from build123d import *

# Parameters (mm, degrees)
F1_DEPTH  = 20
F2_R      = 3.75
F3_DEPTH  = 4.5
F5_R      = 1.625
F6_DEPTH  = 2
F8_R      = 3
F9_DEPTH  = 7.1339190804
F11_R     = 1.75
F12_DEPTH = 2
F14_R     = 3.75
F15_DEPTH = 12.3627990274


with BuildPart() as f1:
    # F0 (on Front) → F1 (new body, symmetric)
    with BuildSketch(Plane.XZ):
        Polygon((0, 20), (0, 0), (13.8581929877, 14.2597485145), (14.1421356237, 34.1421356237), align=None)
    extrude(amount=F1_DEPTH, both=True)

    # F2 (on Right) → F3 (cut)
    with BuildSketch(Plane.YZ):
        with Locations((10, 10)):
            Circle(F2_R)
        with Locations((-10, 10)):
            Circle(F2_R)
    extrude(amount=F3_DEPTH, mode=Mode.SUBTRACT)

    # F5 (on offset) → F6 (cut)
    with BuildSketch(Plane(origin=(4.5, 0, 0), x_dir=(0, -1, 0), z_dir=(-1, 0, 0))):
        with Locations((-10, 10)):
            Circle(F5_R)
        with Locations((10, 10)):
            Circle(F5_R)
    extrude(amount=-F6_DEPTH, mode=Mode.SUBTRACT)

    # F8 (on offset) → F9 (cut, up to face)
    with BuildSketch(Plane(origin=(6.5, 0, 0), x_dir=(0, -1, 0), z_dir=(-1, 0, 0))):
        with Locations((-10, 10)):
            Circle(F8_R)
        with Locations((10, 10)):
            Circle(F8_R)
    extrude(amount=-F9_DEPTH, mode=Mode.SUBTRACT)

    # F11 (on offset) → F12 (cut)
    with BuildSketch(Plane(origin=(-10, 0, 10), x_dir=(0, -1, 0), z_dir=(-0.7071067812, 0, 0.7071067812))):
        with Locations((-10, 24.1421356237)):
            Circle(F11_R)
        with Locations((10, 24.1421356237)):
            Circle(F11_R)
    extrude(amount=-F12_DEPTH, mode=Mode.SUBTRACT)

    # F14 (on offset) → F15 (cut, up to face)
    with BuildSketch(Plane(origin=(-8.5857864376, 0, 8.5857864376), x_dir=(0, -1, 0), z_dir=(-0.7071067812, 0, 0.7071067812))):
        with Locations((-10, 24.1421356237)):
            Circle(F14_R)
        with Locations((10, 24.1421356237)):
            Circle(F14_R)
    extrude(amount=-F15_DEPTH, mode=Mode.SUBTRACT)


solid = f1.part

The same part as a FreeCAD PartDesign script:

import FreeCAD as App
import Part
import Sketcher
from FreeCAD import Vector
Q = App.Units.Quantity

doc = App.newDocument("Part")
body = doc.addObject("PartDesign::Body", "Body")

sketch1 = body.newObject("Sketcher::SketchObject", "Sketch")
sketch1.AttachmentSupport = (doc.getObject("XZ_Plane"), [""])
sketch1.MapMode = "FlatFace"
sketch1.addGeometry([
    Part.LineSegment(Vector(0, 20, 0), Vector(0, 0, 0)),
    Part.LineSegment(Vector(0, 0, 0), Vector(13.858193, 14.259749, 0)),
    Part.LineSegment(Vector(13.858193, 14.259749, 0), Vector(14.142136, 34.142136, 0)),
    Part.LineSegment(Vector(14.142136, 34.142136, 0), Vector(0, 20, 0)),
], False)
sketch1.addConstraint([
    Sketcher.Constraint("Coincident", 0, 2, 1, 1),
    Sketcher.Constraint("Coincident", 1, 2, 2, 1),
    Sketcher.Constraint("Coincident", 2, 2, 3, 1),
    Sketcher.Constraint("Coincident", 3, 2, 0, 1),
    Sketcher.Constraint("Vertical", 0),
    Sketcher.Constraint("Coincident", 0, 2, -1, 1),
    Sketcher.Constraint("Equal", 1, 2),
    Sketcher.Constraint("DistanceY", 0, 2, 0, 1, Q("20 mm")),
    Sketcher.Constraint("Angle", 3, Q("-135 deg")),
    Sketcher.Constraint("Distance", 3, Q("20 mm")),
    Sketcher.Constraint("DistanceY", -1, 1, 1, 2, Q("14.259749 mm")),
])
pad1 = body.newObject("PartDesign::Pad", "Pad")
pad1.Profile = sketch1
pad1.Length = 40
pad1.Midplane = True

sketch2 = body.newObject("Sketcher::SketchObject", "Sketch001")
sketch2.AttachmentSupport = (doc.getObject("YZ_Plane"), [""])
sketch2.MapMode = "FlatFace"
sketch2.addGeometry([
    Part.Circle(Vector(10, 10, 0), Vector(0, 0, 1), 3.75),
    Part.Circle(Vector(-10, 10, 0), Vector(0, 0, 1), 3.75),
], False)
sketch2.addConstraint([
    Sketcher.Constraint("Equal", 0, 1),
    Sketcher.Constraint("Symmetric", 0, 3, 1, 3, -2),
    Sketcher.Constraint("Diameter", 0, Q("7.5 mm")),
    Sketcher.Constraint("DistanceX", -1, 1, 0, 3, Q("10 mm")),
    Sketcher.Constraint("DistanceY", -1, 1, 0, 3, Q("10 mm")),
])
pocket1 = body.newObject("PartDesign::Pocket", "Pocket")
pocket1.Profile = sketch2
pocket1.Length = 4.5
pocket1.Reversed = True

sketch3 = body.newObject("Sketcher::SketchObject", "Sketch002")
sketch3.AttachmentSupport = (doc.getObject("YZ_Plane"), [""])
sketch3.MapMode = "FlatFace"
sketch3.AttachmentOffset = App.Placement(Vector(0, 0, 4.5), App.Rotation())
sketch3.addGeometry([
    Part.Circle(Vector(10, 10, 0), Vector(0, 0, 1), 1.625),
    Part.Circle(Vector(-10, 10, 0), Vector(0, 0, 1), 1.625),
], False)
sketch3.addConstraint([
    Sketcher.Constraint("Equal", 0, 1),
    Sketcher.Constraint("Symmetric", 0, 3, 1, 3, -2),
    Sketcher.Constraint("Diameter", 0, Q("3.25 mm")),
    Sketcher.Constraint("DistanceX", -1, 1, 0, 3, Q("10 mm")),
    Sketcher.Constraint("DistanceY", -1, 1, 0, 3, Q("10 mm")),
])
pocket2 = body.newObject("PartDesign::Pocket", "Pocket001")
pocket2.Profile = sketch3
pocket2.Length = 2
pocket2.Reversed = True

sketch4 = body.newObject("Sketcher::SketchObject", "Sketch003")
sketch4.AttachmentSupport = (doc.getObject("YZ_Plane"), [""])
sketch4.MapMode = "FlatFace"
sketch4.AttachmentOffset = App.Placement(Vector(0, 0, 6.5), App.Rotation())
sketch4.addGeometry([
    Part.Circle(Vector(10, 10, 0), Vector(0, 0, 1), 3),
    Part.Circle(Vector(-10, 10, 0), Vector(0, 0, 1), 3),
], False)
sketch4.addConstraint([
    Sketcher.Constraint("Equal", 0, 1),
    Sketcher.Constraint("Symmetric", 0, 3, 1, 3, -2),
    Sketcher.Constraint("Diameter", 0, Q("6 mm")),
    Sketcher.Constraint("DistanceX", -1, 1, 0, 3, Q("10 mm")),
    Sketcher.Constraint("DistanceY", -1, 1, 0, 3, Q("10 mm")),
])
pocket3 = body.newObject("PartDesign::Pocket", "Pocket002")
pocket3.Profile = sketch4
pocket3.Length = 7.133919
pocket3.Reversed = True

sketch5 = body.newObject("Sketcher::SketchObject", "Sketch004")
sketch5.Placement = App.Placement(Vector(-10, 0, 10), App.Rotation(Vector(0, -1, 0), Vector(0.707106781, 0, 0.707106781), Vector(-0.707106781, 0, 0.707106781), "ZXY"))
sketch5.addGeometry([
    Part.Circle(Vector(-10, 24.142136, 0), Vector(0, 0, 1), 1.75),
    Part.Circle(Vector(10, 24.142136, 0), Vector(0, 0, 1), 1.75),
], False)
sketch5.addConstraint([
    Sketcher.Constraint("Equal", 0, 1),
    Sketcher.Constraint("Symmetric", 0, 3, 1, 3, -2),
    Sketcher.Constraint("Diameter", 0, Q("3.5 mm")),
    Sketcher.Constraint("DistanceX", 0, 3, -1, 1, Q("10 mm")),
    Sketcher.Constraint("DistanceY", -1, 1, 0, 3, Q("24.142136 mm")),
])
pocket4 = body.newObject("PartDesign::Pocket", "Pocket003")
pocket4.Profile = sketch5
pocket4.Length = 2

sketch6 = body.newObject("Sketcher::SketchObject", "Sketch005")
sketch6.Placement = App.Placement(Vector(-8.585786, 0, 8.585786), App.Rotation(Vector(0, -1, 0), Vector(0.707106781, 0, 0.707106781), Vector(-0.707106781, 0, 0.707106781), "ZXY"))
sketch6.addGeometry([
    Part.Circle(Vector(-10, 24.142136, 0), Vector(0, 0, 1), 3.75),
    Part.Circle(Vector(10, 24.142136, 0), Vector(0, 0, 1), 3.75),
], False)
sketch6.addConstraint([
    Sketcher.Constraint("Equal", 0, 1),
    Sketcher.Constraint("Symmetric", 0, 3, 1, 3, -2),
    Sketcher.Constraint("Diameter", 0, Q("7.5 mm")),
    Sketcher.Constraint("DistanceX", 0, 3, -1, 1, Q("10 mm")),
    Sketcher.Constraint("DistanceY", -1, 1, 0, 3, Q("24.142136 mm")),
])
pocket5 = body.newObject("PartDesign::Pocket", "Pocket004")
pocket5.Profile = sketch6
pocket5.Length = 12.362799

doc.recompute()
